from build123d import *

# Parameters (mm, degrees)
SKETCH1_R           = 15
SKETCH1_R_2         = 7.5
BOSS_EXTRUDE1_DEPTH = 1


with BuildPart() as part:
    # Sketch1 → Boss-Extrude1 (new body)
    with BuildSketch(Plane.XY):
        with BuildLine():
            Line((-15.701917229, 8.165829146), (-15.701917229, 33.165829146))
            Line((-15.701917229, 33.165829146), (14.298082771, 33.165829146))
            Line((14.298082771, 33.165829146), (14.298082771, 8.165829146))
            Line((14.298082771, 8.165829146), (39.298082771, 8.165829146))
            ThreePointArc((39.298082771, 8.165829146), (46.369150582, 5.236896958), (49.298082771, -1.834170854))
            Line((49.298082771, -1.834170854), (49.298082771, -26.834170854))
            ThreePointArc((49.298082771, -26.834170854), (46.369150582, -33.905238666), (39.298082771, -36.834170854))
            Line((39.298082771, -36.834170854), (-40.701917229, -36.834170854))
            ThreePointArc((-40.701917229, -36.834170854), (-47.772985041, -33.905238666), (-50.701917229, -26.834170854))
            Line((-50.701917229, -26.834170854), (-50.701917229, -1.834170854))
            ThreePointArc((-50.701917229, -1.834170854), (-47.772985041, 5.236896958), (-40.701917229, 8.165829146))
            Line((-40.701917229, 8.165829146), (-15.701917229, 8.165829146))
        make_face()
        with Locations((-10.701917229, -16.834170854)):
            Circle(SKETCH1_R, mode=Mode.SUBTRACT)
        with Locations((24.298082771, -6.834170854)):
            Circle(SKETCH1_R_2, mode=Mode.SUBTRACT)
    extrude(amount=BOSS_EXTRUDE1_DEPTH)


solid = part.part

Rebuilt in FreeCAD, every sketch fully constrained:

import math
import FreeCAD as App
import Part
import Sketcher
from FreeCAD import Vector

doc = App.newDocument("Part")
body = doc.addObject("PartDesign::Body", "Body")

sketch1 = body.newObject("Sketcher::SketchObject", "Sketch")
sketch1.AttachmentSupport = (doc.getObject("XY_Plane"), [""])
sketch1.MapMode = "FlatFace"
sketch1.addGeometry(Part.LineSegment(Vector(-16, 33, 0), Vector(-16, 8, 0)), False)
sketch1.addGeometry(Part.LineSegment(Vector(-16, 8, 0), Vector(-41, 8, 0)), False)
sketch1.addGeometry(Part.ArcOfCircle(Part.Circle(Vector(-41, -2, 0), Vector(0, 0, 1), 10), math.radians(90), math.radians(180)), False)
sketch1.addGeometry(Part.LineSegment(Vector(-51, -2, 0), Vector(-51, -27, 0)), False)
sketch1.addGeometry(Part.ArcOfCircle(Part.Circle(Vector(-41, -27, 0), Vector(0, 0, 1), 10), math.radians(180), math.radians(270)), False)
sketch1.addGeometry(Part.LineSegment(Vector(-41, -37, 0), Vector(39, -37, 0)), False)
sketch1.addGeometry(Part.ArcOfCircle(Part.Circle(Vector(39, -27, 0), Vector(0, 0, 1), 10), math.radians(-90), math.radians(0)), False)
sketch1.addGeometry(Part.LineSegment(Vector(49, -27, 0), Vector(49, -2, 0)), False)
sketch1.addGeometry(Part.ArcOfCircle(Part.Circle(Vector(39, -2, 0), Vector(0, 0, 1), 10), math.radians(0), math.radians(90)), False)
sketch1.addGeometry(Part.LineSegment(Vector(39, 8, 0), Vector(14, 8, 0)), False)
sketch1.addGeometry(Part.LineSegment(Vector(14, 8, 0), Vector(14, 33, 0)), False)
sketch1.addGeometry(Part.LineSegment(Vector(14, 33, 0), Vector(-16, 33, 0)), False)
sketch1.addGeometry(Part.Circle(Vector(-11, -17, 0), Vector(0, 0, 1), 15), False)
sketch1.addGeometry(Part.Circle(Vector(24, -7, 0), Vector(0, 0, 1), 8), False)
sketch1.addConstraint(Sketcher.Constraint("Coincident", 0, 2, 1, 1))
sketch1.addConstraint(Sketcher.Constraint("Tangent", 1, 2, 2, 1))
sketch1.addConstraint(Sketcher.Constraint("Tangent", 2, 2, 3, 1))
sketch1.addConstraint(Sketcher.Constraint("Tangent", 3, 2, 4, 1))
sketch1.addConstraint(Sketcher.Constraint("Tangent", 4, 2, 5, 1))
sketch1.addConstraint(Sketcher.Constraint("Tangent", 5, 2, 6, 1))
sketch1.addConstraint(Sketcher.Constraint("Tangent", 6, 2, 7, 1))
sketch1.addConstraint(Sketcher.Constraint("Tangent", 7, 2, 8, 1))
sketch1.addConstraint(Sketcher.Constraint("Tangent", 8, 2, 9, 1))
sketch1.addConstraint(Sketcher.Constraint("Coincident", 9, 2, 10, 1))
sketch1.addConstraint(Sketcher.Constraint("Coincident", 10, 2, 11, 1))
sketch1.addConstraint(Sketcher.Constraint("Coincident", 11, 2, 0, 1))
sketch1.addConstraint(Sketcher.Constraint("Vertical", 0))
sketch1.addConstraint(Sketcher.Constraint("Horizontal", 1))
sketch1.addConstraint(Sketcher.Constraint("Vertical", 3))
sketch1.addConstraint(Sketcher.Constraint("Horizontal", 5))
sketch1.addConstraint(Sketcher.Constraint("Vertical", 7))
sketch1.addConstraint(Sketcher.Constraint("Horizontal", 9))
sketch1.addConstraint(Sketcher.Constraint("Vertical", 10))
sketch1.addConstraint(Sketcher.Constraint("Horizontal", 11))
sketch1.addConstraint(Sketcher.Constraint("Equal", 2, 4))
sketch1.addConstraint(Sketcher.Constraint("Equal", 4, 6))
sketch1.addConstraint(Sketcher.Constraint("Equal", 6, 8))
sketch1.addConstraint(Sketcher.Constraint("Horizontal", 2, 3, 8, 3))
sketch1.addConstraint(Sketcher.Constraint("Equal", 1, 9))
sketch1.addConstraint(Sketcher.Constraint("Equal", 9, 0))
sketch1.addConstraint(Sketcher.Constraint("Equal", 0, 3))
sketch1.addConstraint(Sketcher.Constraint("Diameter", 12, 30.0))
sketch1.addConstraint(Sketcher.Constraint("Diameter", 13, 15.0))
sketch1.addConstraint(Sketcher.Constraint("Radius", 2, 10.0))
sketch1.addConstraint(Sketcher.Constraint("DistanceX", 1, 2, 1, 1, 25.0))
sketch1.addConstraint(Sketcher.Constraint("DistanceX", 5, 1, 5, 2, 80.0))
sketch1.addConstraint(Sketcher.Constraint("DistanceX", 4, 3, 12, 3, 30.0))
sketch1.addConstraint(Sketcher.Constraint("DistanceY", 4, 3, 12, 3, 10.0))
sketch1.addConstraint(Sketcher.Constraint("DistanceX", 13, 3, 8, 3, 15.0))
sketch1.addConstraint(Sketcher.Constraint("DistanceY", 13, 3, 8, 3, 5.0))
sketch1.addConstraint(Sketcher.Constraint("DistanceY", 2, 3, -1, 1, 1.834171))
sketch1.addConstraint(Sketcher.Constraint("DistanceX", 2, 3, -1, 1, 40.701917))
pad1 = body.newObject("PartDesign::Pad", "Pad")
pad1.Profile = sketch1
pad1.Length = 1

doc.recompute()
